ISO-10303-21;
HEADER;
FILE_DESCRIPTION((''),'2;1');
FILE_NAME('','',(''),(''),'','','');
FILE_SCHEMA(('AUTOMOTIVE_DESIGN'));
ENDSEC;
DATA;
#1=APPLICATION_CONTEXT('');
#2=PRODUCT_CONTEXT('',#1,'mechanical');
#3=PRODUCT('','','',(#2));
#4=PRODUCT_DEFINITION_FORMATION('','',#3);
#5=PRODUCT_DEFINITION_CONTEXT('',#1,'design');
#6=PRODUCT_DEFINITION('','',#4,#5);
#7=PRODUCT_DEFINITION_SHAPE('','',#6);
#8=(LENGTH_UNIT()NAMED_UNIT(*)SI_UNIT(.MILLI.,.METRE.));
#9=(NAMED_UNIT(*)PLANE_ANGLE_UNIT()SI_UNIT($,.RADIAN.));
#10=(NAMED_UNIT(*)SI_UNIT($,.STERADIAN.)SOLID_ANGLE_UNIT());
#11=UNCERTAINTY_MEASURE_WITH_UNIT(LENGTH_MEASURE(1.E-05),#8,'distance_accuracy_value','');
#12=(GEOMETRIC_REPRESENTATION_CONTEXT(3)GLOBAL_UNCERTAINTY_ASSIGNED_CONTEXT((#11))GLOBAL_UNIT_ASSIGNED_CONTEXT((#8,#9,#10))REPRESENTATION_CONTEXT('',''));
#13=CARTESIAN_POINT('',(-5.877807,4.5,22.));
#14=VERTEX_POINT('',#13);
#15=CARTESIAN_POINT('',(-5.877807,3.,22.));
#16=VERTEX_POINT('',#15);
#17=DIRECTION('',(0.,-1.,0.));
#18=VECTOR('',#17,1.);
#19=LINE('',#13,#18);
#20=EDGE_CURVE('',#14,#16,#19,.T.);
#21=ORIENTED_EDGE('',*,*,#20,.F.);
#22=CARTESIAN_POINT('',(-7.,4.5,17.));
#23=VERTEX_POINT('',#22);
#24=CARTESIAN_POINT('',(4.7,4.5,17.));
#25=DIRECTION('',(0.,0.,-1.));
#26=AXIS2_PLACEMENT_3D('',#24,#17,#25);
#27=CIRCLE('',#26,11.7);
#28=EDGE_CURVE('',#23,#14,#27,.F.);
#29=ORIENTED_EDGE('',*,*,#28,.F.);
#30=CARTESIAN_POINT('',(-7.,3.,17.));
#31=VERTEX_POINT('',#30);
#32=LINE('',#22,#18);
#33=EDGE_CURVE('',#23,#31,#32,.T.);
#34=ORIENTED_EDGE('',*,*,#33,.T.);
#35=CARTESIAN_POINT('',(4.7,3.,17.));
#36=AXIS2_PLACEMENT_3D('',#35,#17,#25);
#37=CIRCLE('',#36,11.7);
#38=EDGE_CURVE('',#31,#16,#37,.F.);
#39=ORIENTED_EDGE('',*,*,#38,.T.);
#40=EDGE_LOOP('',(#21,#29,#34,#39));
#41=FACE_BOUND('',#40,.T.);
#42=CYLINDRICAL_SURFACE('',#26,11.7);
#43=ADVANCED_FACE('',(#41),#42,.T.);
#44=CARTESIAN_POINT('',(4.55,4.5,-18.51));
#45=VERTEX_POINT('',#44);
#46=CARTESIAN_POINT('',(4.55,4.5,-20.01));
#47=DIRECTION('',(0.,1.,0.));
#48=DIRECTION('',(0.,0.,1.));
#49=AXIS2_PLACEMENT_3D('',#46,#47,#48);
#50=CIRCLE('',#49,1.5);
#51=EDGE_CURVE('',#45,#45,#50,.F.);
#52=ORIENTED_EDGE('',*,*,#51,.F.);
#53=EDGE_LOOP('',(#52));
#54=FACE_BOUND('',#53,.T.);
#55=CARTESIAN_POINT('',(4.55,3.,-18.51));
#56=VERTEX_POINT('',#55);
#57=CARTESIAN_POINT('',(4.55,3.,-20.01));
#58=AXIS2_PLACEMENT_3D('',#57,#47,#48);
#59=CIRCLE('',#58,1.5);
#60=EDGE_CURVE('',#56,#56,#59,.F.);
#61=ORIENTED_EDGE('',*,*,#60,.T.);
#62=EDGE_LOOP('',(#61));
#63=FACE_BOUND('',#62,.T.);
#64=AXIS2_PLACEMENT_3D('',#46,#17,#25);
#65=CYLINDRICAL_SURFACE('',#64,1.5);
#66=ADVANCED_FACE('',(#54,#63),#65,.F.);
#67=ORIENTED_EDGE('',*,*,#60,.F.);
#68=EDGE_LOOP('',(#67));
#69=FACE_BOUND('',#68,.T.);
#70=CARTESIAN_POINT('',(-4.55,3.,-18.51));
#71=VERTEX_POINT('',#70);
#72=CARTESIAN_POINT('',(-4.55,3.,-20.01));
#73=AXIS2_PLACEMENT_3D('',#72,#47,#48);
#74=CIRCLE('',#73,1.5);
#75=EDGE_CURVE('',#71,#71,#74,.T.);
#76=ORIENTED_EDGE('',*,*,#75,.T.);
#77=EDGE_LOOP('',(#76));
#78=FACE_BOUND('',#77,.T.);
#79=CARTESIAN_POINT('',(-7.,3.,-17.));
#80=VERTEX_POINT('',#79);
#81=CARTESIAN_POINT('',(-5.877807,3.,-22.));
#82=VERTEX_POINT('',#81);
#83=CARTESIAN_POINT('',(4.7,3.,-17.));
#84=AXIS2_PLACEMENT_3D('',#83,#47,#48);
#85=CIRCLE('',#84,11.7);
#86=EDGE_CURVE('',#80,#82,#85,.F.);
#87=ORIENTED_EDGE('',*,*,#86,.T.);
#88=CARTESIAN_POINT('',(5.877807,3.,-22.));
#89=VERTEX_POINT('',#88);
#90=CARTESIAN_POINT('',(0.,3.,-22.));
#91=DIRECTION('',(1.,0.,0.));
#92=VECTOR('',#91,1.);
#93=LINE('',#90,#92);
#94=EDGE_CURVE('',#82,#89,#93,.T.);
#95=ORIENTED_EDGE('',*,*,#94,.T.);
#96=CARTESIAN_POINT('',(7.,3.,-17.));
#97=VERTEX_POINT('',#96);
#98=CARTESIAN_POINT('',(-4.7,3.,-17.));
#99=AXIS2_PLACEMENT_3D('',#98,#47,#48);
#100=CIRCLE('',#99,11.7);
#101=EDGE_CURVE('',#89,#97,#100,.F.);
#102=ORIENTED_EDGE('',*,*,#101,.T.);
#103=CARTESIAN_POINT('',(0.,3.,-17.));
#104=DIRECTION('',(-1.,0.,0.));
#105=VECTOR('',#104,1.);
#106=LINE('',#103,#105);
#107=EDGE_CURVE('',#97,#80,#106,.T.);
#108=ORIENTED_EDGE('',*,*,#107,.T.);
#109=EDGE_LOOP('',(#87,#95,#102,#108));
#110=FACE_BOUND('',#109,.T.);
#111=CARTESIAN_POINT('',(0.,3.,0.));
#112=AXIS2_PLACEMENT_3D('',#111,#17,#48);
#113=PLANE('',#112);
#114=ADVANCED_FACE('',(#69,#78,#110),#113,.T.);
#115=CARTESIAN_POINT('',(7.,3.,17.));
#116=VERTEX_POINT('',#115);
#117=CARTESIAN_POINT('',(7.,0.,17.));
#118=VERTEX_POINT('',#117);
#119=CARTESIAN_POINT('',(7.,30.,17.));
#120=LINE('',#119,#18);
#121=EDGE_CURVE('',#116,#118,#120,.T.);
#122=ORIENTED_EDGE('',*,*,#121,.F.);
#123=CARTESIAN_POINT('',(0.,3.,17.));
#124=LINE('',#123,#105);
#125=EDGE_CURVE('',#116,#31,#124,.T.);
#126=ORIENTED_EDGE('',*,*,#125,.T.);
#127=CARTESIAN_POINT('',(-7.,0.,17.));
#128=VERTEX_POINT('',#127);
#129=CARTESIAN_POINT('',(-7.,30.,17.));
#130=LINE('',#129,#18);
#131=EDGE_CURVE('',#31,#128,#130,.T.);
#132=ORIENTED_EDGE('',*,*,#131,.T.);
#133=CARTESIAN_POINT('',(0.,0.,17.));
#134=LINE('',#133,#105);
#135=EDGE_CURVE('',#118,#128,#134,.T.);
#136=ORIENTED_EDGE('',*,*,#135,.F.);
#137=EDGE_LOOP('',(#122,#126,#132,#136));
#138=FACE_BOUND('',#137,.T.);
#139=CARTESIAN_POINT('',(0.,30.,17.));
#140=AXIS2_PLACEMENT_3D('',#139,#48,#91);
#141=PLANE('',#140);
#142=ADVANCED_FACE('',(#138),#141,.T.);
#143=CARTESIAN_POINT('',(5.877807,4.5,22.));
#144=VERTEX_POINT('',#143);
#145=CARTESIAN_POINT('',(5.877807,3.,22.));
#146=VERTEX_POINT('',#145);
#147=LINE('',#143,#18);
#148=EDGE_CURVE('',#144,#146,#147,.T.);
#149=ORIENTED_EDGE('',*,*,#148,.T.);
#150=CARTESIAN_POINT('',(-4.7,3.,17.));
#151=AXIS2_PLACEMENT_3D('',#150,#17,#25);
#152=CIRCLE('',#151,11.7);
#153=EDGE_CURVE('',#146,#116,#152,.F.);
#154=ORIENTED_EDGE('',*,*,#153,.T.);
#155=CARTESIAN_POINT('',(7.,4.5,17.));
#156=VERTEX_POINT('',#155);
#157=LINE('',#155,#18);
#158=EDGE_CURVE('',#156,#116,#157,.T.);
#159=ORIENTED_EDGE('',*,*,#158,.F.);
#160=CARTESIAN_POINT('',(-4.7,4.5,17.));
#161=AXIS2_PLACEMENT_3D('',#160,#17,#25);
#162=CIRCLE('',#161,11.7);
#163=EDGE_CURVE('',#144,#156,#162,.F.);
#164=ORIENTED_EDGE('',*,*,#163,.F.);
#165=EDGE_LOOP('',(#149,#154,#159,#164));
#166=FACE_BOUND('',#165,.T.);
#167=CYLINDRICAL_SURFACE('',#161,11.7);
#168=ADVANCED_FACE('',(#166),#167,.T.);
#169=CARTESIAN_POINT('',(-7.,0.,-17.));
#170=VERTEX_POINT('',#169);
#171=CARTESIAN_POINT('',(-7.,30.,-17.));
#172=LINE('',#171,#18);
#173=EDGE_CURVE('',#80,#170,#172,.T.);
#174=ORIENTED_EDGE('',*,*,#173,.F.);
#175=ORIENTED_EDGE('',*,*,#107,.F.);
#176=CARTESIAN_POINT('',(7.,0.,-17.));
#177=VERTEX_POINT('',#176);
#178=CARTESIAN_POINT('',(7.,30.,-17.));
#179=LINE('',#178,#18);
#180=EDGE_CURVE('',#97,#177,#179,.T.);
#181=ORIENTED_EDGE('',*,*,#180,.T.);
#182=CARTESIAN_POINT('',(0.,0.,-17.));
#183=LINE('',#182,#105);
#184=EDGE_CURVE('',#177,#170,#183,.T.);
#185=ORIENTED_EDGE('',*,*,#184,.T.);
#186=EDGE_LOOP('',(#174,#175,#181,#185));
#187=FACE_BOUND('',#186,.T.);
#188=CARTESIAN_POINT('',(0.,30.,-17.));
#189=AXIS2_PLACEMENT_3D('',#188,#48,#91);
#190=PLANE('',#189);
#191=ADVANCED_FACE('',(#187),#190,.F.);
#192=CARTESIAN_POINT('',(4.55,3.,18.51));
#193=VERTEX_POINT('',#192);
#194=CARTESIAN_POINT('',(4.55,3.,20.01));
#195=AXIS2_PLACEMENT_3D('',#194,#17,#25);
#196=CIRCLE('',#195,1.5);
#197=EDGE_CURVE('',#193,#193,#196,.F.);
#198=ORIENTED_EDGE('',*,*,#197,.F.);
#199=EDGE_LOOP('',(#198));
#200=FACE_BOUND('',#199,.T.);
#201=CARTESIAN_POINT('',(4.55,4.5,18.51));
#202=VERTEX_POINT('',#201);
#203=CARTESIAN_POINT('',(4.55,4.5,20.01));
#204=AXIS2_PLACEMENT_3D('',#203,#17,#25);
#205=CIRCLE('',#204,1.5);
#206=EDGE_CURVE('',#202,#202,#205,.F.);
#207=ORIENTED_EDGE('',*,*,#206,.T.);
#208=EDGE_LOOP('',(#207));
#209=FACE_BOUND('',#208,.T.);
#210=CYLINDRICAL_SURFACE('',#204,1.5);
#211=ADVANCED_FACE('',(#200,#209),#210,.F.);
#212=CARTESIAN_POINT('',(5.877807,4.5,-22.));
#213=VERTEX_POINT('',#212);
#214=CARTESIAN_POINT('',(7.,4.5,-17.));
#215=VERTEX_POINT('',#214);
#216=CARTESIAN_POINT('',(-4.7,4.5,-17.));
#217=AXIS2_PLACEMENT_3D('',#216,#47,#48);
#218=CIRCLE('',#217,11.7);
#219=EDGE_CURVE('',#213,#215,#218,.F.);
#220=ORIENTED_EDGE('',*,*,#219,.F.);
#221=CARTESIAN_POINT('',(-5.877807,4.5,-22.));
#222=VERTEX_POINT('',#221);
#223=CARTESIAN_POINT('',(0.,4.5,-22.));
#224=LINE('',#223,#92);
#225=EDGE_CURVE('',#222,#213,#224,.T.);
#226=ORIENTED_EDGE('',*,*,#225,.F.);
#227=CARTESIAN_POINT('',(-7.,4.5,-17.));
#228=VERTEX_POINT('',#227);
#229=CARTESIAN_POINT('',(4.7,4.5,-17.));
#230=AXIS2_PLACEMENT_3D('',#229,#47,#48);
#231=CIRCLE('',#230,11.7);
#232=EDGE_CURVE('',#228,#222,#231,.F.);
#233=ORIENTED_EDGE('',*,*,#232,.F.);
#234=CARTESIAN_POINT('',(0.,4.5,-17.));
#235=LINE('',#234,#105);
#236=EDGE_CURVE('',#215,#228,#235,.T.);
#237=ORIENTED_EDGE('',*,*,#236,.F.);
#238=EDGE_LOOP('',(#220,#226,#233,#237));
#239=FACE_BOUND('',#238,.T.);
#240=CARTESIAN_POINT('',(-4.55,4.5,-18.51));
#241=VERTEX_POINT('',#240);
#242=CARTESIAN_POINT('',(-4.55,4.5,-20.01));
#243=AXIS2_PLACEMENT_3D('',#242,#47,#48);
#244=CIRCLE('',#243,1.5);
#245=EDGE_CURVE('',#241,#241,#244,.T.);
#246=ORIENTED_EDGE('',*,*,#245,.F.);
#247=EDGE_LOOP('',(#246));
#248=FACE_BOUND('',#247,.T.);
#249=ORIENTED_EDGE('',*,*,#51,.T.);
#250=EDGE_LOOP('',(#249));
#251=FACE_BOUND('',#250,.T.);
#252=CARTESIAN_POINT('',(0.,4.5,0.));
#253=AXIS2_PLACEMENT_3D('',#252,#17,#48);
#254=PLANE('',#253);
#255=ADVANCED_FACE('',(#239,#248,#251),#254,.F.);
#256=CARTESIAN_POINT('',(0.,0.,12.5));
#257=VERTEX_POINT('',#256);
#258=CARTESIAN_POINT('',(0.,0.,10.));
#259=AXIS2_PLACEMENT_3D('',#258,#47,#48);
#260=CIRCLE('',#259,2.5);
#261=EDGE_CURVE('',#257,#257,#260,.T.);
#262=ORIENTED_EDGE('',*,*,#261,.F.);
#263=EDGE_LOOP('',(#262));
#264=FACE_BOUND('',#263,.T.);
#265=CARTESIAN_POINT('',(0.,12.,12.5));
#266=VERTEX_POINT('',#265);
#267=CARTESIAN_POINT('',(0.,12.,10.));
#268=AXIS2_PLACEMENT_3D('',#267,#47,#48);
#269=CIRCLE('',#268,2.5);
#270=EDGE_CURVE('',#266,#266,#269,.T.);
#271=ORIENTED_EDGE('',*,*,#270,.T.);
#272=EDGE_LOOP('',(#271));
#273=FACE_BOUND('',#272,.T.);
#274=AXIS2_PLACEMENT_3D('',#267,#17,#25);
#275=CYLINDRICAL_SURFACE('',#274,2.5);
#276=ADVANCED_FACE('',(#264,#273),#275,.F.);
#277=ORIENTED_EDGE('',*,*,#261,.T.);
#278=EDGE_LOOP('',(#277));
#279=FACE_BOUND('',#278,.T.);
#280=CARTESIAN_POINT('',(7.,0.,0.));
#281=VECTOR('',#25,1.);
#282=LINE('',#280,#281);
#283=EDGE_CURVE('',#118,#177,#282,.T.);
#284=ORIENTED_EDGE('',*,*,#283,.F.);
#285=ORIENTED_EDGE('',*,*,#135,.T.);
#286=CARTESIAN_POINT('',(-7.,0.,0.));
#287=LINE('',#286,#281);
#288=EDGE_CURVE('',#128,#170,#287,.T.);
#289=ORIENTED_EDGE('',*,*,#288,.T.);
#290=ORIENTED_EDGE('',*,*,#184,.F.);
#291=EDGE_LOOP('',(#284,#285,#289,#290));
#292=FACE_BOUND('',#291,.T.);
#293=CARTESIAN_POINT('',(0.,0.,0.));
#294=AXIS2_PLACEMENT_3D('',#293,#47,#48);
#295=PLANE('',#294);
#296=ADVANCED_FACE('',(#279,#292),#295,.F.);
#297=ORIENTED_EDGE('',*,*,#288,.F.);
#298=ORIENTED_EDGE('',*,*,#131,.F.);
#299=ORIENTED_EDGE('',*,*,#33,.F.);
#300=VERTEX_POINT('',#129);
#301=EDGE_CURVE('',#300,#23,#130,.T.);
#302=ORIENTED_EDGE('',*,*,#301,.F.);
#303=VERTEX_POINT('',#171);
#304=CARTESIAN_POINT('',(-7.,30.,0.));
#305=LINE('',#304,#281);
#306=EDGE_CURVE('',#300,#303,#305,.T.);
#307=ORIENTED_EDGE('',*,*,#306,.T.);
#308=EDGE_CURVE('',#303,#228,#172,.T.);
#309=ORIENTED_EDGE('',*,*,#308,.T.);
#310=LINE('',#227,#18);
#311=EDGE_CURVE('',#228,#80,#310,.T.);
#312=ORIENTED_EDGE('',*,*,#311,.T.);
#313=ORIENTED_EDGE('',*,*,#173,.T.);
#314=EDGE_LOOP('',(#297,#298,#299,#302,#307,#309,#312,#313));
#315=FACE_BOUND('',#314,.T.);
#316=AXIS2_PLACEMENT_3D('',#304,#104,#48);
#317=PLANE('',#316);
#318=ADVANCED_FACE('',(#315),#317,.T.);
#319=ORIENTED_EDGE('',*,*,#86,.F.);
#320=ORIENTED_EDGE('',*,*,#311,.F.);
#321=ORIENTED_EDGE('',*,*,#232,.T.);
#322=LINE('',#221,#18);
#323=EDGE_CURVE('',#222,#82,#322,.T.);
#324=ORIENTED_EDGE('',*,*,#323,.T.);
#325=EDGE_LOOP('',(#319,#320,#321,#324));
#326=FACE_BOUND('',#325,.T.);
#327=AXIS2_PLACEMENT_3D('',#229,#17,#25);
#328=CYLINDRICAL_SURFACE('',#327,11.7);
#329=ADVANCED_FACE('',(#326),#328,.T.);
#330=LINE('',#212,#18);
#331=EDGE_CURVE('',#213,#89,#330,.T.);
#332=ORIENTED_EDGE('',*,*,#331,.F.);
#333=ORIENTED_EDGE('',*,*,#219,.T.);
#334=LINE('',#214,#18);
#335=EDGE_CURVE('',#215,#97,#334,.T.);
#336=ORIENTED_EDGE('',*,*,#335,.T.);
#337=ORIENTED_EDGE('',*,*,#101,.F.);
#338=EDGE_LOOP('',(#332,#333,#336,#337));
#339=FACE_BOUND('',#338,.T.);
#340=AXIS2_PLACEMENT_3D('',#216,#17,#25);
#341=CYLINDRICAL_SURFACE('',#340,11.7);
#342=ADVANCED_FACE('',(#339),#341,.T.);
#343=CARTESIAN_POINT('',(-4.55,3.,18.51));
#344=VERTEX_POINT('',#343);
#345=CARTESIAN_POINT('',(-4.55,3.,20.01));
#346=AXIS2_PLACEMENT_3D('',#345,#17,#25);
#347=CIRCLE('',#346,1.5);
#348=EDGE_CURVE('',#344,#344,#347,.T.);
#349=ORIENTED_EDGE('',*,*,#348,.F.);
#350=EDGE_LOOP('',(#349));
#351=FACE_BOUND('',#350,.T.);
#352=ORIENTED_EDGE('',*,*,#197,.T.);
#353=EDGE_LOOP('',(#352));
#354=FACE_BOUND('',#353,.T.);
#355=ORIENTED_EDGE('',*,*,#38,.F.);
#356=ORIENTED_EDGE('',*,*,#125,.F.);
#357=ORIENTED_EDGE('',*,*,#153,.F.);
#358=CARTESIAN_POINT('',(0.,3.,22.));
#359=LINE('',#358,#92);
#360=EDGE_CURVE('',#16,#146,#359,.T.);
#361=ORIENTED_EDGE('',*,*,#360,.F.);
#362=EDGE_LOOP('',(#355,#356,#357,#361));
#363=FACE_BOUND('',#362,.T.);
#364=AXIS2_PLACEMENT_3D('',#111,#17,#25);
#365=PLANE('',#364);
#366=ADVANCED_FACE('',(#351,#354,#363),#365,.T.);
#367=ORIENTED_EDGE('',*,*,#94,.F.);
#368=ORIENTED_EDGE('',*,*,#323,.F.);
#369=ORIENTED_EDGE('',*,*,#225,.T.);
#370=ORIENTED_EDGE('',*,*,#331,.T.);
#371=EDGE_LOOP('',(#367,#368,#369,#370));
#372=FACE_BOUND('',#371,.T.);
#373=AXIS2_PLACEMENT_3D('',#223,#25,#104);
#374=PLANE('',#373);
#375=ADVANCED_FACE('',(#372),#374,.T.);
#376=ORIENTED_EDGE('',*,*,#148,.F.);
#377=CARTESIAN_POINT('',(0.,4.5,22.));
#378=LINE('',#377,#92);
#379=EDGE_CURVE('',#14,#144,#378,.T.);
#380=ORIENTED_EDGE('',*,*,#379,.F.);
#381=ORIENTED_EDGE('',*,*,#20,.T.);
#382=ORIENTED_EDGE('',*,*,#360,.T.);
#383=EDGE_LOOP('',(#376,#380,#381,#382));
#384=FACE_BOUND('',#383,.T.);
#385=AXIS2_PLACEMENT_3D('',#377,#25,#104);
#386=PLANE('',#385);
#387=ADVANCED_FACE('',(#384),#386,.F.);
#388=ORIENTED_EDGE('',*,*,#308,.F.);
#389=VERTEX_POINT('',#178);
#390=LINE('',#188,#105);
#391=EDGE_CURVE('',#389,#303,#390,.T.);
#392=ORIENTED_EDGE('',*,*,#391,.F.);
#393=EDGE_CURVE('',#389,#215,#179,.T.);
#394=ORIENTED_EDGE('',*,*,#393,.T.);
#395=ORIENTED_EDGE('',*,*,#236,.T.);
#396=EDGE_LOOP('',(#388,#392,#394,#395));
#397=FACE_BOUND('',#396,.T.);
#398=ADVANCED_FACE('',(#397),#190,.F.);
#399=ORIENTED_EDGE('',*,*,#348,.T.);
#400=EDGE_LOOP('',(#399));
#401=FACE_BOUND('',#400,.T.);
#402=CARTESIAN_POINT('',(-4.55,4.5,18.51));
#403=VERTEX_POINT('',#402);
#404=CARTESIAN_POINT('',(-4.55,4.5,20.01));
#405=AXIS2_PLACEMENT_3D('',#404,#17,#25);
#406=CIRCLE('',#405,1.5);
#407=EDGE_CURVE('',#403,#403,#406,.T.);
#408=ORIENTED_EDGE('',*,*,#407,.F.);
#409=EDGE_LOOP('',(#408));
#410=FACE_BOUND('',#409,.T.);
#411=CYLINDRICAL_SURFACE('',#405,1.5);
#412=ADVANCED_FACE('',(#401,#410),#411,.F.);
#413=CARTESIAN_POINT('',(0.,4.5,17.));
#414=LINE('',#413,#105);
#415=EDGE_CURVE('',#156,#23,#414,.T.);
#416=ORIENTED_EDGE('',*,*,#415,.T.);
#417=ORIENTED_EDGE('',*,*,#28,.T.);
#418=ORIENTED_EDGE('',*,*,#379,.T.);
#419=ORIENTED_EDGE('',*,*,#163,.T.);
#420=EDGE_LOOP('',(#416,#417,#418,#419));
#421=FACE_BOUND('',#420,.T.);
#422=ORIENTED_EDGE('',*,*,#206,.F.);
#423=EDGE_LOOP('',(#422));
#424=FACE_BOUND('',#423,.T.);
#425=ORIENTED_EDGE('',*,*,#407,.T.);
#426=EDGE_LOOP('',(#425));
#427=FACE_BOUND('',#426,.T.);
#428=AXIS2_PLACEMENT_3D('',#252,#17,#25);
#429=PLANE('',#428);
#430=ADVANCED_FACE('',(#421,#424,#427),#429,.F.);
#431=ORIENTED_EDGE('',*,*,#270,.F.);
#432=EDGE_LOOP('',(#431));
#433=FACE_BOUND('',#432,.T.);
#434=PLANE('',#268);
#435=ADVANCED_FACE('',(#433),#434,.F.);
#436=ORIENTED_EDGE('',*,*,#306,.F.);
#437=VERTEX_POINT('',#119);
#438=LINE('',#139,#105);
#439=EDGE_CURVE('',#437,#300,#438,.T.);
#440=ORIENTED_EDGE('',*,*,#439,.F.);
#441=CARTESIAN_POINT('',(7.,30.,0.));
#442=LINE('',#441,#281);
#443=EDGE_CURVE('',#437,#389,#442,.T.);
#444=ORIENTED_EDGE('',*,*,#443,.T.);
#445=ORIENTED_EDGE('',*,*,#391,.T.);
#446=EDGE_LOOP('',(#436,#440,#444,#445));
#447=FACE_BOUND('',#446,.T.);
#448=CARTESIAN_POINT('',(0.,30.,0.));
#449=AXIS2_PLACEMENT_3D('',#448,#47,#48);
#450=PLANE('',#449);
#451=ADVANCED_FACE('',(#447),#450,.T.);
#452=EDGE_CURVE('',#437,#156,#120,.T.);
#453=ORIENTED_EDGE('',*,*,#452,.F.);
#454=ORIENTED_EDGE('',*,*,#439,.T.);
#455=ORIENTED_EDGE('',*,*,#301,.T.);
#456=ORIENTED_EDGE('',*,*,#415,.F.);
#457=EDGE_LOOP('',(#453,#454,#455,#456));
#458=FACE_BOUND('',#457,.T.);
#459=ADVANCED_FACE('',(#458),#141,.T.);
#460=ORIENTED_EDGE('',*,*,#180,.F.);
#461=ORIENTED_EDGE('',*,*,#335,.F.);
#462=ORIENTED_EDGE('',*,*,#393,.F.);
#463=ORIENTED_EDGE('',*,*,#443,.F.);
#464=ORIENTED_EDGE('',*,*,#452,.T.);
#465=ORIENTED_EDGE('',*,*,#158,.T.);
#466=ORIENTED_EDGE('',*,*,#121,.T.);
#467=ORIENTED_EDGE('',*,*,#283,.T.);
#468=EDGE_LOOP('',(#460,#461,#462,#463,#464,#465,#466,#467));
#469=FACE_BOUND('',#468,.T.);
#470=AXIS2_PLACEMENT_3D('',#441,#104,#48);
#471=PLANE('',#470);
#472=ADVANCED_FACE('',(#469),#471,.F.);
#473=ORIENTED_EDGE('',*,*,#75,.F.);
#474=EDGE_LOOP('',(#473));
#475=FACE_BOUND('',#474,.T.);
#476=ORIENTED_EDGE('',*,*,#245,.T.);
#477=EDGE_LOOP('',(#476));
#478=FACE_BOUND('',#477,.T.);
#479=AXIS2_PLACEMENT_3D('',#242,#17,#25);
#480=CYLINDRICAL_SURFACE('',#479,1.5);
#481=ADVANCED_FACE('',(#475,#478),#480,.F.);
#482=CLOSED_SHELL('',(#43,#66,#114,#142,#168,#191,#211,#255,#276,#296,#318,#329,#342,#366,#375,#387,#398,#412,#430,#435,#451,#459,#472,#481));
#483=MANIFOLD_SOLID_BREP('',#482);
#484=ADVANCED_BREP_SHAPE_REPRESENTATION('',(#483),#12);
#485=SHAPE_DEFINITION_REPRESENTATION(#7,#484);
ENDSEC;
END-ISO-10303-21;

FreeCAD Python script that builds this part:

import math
import FreeCAD as App
import Part
import Sketcher
Q = App.Units.Quantity


def add_polygon(sketch, points):
    """Adds a closed chain of lines whose ends are joined by coincident constraints."""
    first, n = sketch.GeometryCount, len(points)
    for a, b in zip(points, points[1:] + points[:1]):
        sketch.addGeometry(Part.LineSegment(App.Vector(*a, 0), App.Vector(*b, 0)), False)
    for i in range(n):
        sketch.addConstraint(Sketcher.Constraint("Coincident", first + i, 2, first + (i + 1) % n, 1))

doc = App.newDocument("Part")
body = doc.addObject("PartDesign::Body", "Body")

# Sketch on XZ plane
sketch1 = body.newObject("Sketcher::SketchObject", "Sketch")
sketch1.AttachmentSupport = (doc.getObject("XZ_Plane"), [""])
sketch1.MapMode = "FlatFace"
add_polygon(sketch1, [(-7, -17), (-7, 17), (7, 17), (7, -17)])  # lines 0-3
sketch1.addConstraint([
    Sketcher.Constraint("Vertical", 0),
    Sketcher.Constraint("Horizontal", 1),
    Sketcher.Constraint("Vertical", 2),
    Sketcher.Constraint("Horizontal", 3),
    Sketcher.Constraint("Symmetric", 0, 2, 2, 2, -1, 1),
    Sketcher.Constraint("DistanceX", 1, 1, 1, 2, Q("14 mm")),
    Sketcher.Constraint("DistanceY", 0, 1, 0, 2, Q("34 mm")),
])
pad1 = body.newObject("PartDesign::Pad", "Pad")
pad1.Profile = sketch1
pad1.Length = 30
pad1.Reversed = True

# Sketch on XZ plane
sketch2 = body.newObject("Sketcher::SketchObject", "Sketch001")
sketch2.AttachmentSupport = (doc.getObject("XZ_Plane"), [""])
sketch2.MapMode = "FlatFace"
sketch2.addGeometry(Part.Circle(App.Vector(0, 10, 0), App.Vector(0, 0, 1), 2.5), False)
sketch2.addConstraint([
    Sketcher.Constraint("PointOnObject", 0, 3, -2),
    Sketcher.Constraint("Diameter", 0, Q("5 mm")),
    Sketcher.Constraint("DistanceY", -1, 1, 0, 3, Q("10 mm")),
])
pocket1 = body.newObject("PartDesign::Pocket", "Pocket")
pocket1.Profile = sketch2
pocket1.Length = 12

# Sketch on XZ plane
sketch3 = body.newObject("Sketcher::SketchObject", "Sketch002")
sketch3.AttachmentSupport = (doc.getObject("XZ_Plane"), [""])
sketch3.MapMode = "FlatFace"
sketch3.AttachmentOffset = App.Placement(App.Vector(0, 0, -3), App.Rotation())
sketch3.addGeometry([
    Part.ArcOfCircle(Part.Circle(App.Vector(4.7, 17, 0), App.Vector(0, 0, 1), 11.7), math.radians(155), math.radians(180)),  # 0
    Part.LineSegment(App.Vector(-7, 17, 0), App.Vector(7, 17, 0)),  # 1
    Part.ArcOfCircle(Part.Circle(App.Vector(-4.7, 17, 0), App.Vector(0, 0, 1), 11.7), math.radians(0), math.radians(25)),  # 2
    Part.LineSegment(App.Vector(5.9, 22, 0), App.Vector(-5.9, 22, 0)),  # 3
    Part.Circle(App.Vector(-4.5, 20, 0), App.Vector(0, 0, 1), 1.5),  # 4
    Part.Circle(App.Vector(4.5, 20, 0), App.Vector(0, 0, 1), 1.5),  # 5
], False)
sketch3.addConstraint([
    Sketcher.Constraint("Coincident", 0, 2, 1, 1),
    Sketcher.Constraint("Coincident", 1, 2, 2, 1),
    Sketcher.Constraint("Coincident", 2, 2, 3, 1),
    Sketcher.Constraint("Coincident", 3, 2, 0, 1),
    Sketcher.Constraint("Horizontal", 1),
    Sketcher.Constraint("Horizontal", 3),
    Sketcher.Constraint("Equal", 0, 2),
    Sketcher.Constraint("Equal", 4, 5),
    Sketcher.Constraint("Symmetric", 0, 3, 2, 3, -2),
    Sketcher.Constraint("Symmetric", 4, 3, 5, 3, -2),
    Sketcher.Constraint("Horizontal", 2, 3, 0, 2),
    Sketcher.Constraint("Diameter", 4, Q("3 mm")),
    Sketcher.Constraint("Radius", 0, Q("11.7 mm")),
    Sketcher.Constraint("DistanceX", 1, 1, 1, 2, Q("14 mm")),
    Sketcher.Constraint("DistanceY", -1, 1, 0, 3, Q("17 mm")),
    Sketcher.Constraint("DistanceY", -1, 1, 2, 2, Q("22 mm")),
    Sketcher.Constraint("DistanceX", 4, 3, 5, 3, Q("9.1 mm")),
    Sketcher.Constraint("DistanceY", -1, 1, 4, 3, Q("20.01 mm")),
])
pad2 = body.newObject("PartDesign::Pad", "Pad001")
pad2.Profile = sketch3
pad2.Length = 1.5
pad2.Reversed = True
doc.recompute()

mirrored = body.newObject("PartDesign::Mirrored", "Mirrored")
mirrored.Originals = [pad2]
mirrored.MirrorPlane = (doc.getObject("XY_Plane"), [""])
body.Tip = mirrored

doc.recompute()
